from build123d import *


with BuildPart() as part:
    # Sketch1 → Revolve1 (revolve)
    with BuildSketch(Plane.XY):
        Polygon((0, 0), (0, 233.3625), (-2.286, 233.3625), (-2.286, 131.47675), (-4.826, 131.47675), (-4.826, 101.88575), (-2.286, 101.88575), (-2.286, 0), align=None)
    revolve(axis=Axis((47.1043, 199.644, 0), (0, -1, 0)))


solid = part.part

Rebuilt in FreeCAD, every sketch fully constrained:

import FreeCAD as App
import Part
import Sketcher

V = App.Vector
Q = App.Units.Quantity


def add_polygon(sketch, points):
    """Adds a closed chain of lines whose ends are joined by coincident constraints."""
    first, n = sketch.GeometryCount, len(points)
    for a, b in zip(points, points[1:] + points[:1]):
        sketch.addGeometry(Part.LineSegment(App.Vector(*a, 0), App.Vector(*b, 0)), False)
    for i in range(n):
        sketch.addConstraint(Sketcher.Constraint("Coincident", first + i, 2, first + (i + 1) % n, 1))

doc = App.newDocument("Part")
body = doc.addObject("PartDesign::Body", "Body")

sketch1 = doc.addObject("Sketcher::SketchObject", "Sketch")
body.addObject(sketch1)
sketch1.AttachmentSupport = (doc.XY_Plane, [""])
sketch1.MapMode = "FlatFace"
add_polygon(sketch1, [(0, 0), (0, 233.3625), (-2.286, 233.3625), (-2.286, 131.47675), (-4.826, 131.47675), (-4.826, 101.88575), (-2.286, 101.88575), (-2.286, 0)])
sketch1.addGeometry(Part.LineSegment(V(47.1043, 233.3625, 0), V(47.1043, 0, 0)), True)
sketch1.addConstraint([
    Sketcher.Constraint("Vertical", 0),
    Sketcher.Constraint("Horizontal", 1),
    Sketcher.Constraint("Vertical", 2),
    Sketcher.Constraint("Horizontal", 3),
    Sketcher.Constraint("Vertical", 4),
    Sketcher.Constraint("Horizontal", 5),
    Sketcher.Constraint("Vertical", 6),
    Sketcher.Constraint("Horizontal", 7),
    Sketcher.Constraint("Vertical", 8),
    Sketcher.Constraint("Coincident", 7, 2, -1, 1),
    Sketcher.Constraint("PointOnObject", 8, 2, -1),
    Sketcher.Constraint("Horizontal", 1, 2, 8, 1),
    Sketcher.Constraint("Vertical", 2, 2, 5, 2),
    Sketcher.Constraint("Equal", 2, 6),
    Sketcher.Constraint("DistanceX", 3, 2, 3, 1, Q("0.1 in")),
    Sketcher.Constraint("DistanceX", 1, 2, 1, 1, Q("0.09 in")),
    Sketcher.Constraint("DistanceY", 0, 1, 0, 2, Q("9.1875 in")),
    Sketcher.Constraint("DistanceY", 4, 2, 4, 1, Q("1.165 in")),
    Sketcher.Constraint("DistanceX", -1, 1, 8, 1, Q("1.8545 in")),
])
revolution = doc.addObject("PartDesign::Revolution", "Revolution")
body.addObject(revolution)
revolution.Profile = sketch1
revolution.ReferenceAxis = (sketch1, ["Axis0"])
revolution.Angle = 360

doc.recompute()
